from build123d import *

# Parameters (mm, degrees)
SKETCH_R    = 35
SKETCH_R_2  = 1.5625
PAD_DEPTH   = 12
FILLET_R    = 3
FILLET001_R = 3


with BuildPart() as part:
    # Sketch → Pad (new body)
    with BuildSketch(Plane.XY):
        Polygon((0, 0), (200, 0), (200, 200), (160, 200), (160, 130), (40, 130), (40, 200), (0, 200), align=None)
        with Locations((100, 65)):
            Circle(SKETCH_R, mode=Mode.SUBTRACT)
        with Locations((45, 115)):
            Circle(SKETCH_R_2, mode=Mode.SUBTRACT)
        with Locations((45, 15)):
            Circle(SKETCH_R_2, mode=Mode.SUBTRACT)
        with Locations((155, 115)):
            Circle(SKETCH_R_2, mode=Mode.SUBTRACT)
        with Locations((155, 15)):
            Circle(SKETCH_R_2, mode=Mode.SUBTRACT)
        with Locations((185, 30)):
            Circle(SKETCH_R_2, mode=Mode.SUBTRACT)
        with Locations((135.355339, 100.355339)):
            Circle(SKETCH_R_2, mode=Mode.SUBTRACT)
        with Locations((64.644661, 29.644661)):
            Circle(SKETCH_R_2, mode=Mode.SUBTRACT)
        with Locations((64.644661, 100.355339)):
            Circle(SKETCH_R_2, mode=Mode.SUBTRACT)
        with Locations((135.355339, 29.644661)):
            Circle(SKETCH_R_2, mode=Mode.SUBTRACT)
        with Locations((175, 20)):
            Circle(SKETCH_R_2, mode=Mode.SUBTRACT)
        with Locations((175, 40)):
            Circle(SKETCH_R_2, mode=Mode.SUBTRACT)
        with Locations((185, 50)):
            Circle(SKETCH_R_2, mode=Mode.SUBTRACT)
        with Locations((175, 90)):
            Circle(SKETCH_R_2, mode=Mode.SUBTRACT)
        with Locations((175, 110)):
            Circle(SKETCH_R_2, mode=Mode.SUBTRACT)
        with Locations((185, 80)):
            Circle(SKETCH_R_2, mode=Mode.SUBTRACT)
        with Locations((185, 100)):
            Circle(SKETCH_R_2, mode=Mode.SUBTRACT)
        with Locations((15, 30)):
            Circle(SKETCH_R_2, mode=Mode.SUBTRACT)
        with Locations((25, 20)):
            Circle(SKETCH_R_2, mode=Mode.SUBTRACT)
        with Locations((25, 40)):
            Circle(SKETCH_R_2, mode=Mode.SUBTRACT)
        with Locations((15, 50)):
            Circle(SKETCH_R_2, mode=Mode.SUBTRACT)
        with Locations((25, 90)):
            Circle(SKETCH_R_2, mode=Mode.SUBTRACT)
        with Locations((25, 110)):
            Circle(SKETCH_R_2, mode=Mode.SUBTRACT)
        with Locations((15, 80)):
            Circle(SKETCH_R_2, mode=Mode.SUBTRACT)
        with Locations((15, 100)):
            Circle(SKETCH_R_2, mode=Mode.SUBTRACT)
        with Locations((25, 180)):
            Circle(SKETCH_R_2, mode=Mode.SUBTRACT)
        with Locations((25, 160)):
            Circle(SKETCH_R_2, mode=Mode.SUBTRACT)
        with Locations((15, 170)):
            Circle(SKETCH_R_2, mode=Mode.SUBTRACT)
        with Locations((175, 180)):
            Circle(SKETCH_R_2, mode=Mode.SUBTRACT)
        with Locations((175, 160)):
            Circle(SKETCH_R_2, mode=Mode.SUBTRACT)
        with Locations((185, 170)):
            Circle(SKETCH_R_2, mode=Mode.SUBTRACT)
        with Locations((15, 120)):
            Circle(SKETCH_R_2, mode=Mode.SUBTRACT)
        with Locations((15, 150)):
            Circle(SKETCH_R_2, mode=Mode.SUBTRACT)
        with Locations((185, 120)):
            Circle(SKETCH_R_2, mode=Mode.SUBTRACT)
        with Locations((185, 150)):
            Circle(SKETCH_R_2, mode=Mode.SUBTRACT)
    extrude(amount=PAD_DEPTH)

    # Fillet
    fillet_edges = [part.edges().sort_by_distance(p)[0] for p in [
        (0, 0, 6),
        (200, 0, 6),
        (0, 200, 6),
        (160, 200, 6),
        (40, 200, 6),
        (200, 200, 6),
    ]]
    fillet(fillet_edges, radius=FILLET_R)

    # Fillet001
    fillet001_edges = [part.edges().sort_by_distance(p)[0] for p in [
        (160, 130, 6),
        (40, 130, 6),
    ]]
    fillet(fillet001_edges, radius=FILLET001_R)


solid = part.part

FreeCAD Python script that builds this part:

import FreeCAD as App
import Part
import Sketcher
from FreeCAD import Vector


def edges_at(feature, points):
    """Names of the edges that pass closest to the given points."""
    edges = feature.Shape.Edges
    near = lambda p: min(range(len(edges)), key=lambda i: edges[i].distToShape(Part.Vertex(*p))[0])
    return sorted({f"Edge{near(p) + 1}" for p in points})

doc = App.newDocument("Part")
params = doc.addObject("Spreadsheet::Sheet", "Params")
for row, (alias, value) in enumerate([
    ("sketch1_diameter", "70 mm"),
    ("sketch1_width", "200 mm"),
    ("sketch1_width2", "40 mm"),
    ("sketch1_height", "70 mm"),
    ("pad1_length", "12 mm"),
    ("fillet_radius", "3 mm"),
    ("fillet2_radius", "3 mm"),
], start=1):
    params.set(f"A{row}", alias)
    params.set(f"B{row}", "=" + value)
    params.setAlias(f"B{row}", alias)

body = doc.addObject("PartDesign::Body", "Body")

sketch1 = body.newObject("Sketcher::SketchObject", "Sketch")
sketch1.AttachmentSupport = (doc.getObject("XY_Plane"), [""])
sketch1.MapMode = "FlatFace"
sketch1.addGeometry([
    Part.LineSegment(Vector(0, 0, 0), Vector(200, 0, 0)),
    Part.LineSegment(Vector(200, 0, 0), Vector(200, 200, 0)),
    Part.LineSegment(Vector(200, 200, 0), Vector(160, 200, 0)),
    Part.LineSegment(Vector(160, 200, 0), Vector(160, 130, 0)),
    Part.LineSegment(Vector(160, 130, 0), Vector(40, 130, 0)),
    Part.LineSegment(Vector(40, 130, 0), Vector(40, 200, 0)),
    Part.LineSegment(Vector(40, 200, 0), Vector(0, 200, 0)),
    Part.LineSegment(Vector(0, 200, 0), Vector(0, 0, 0)),
    Part.Circle(Vector(25, 20, 0), Vector(0, 0, 1), 1.6),
    Part.Circle(Vector(15, 30, 0), Vector(0, 0, 1), 1.6),
    Part.Circle(Vector(45, 15, 0), Vector(0, 0, 1), 1.6),
    Part.Circle(Vector(25, 40, 0), Vector(0, 0, 1), 1.6),
    Part.Circle(Vector(15, 50, 0), Vector(0, 0, 1), 1.6),
    Part.Circle(Vector(64.6, 29.6, 0), Vector(0, 0, 1), 1.6),
    Part.Circle(Vector(15, 80, 0), Vector(0, 0, 1), 1.6),
    Part.Circle(Vector(25, 90, 0), Vector(0, 0, 1), 1.6),
    Part.Circle(Vector(135.4, 29.6, 0), Vector(0, 0, 1), 1.6),
    Part.Circle(Vector(155, 15, 0), Vector(0, 0, 1), 1.6),
    Part.Circle(Vector(175, 20, 0), Vector(0, 0, 1), 1.6),
    Part.Circle(Vector(185, 30, 0), Vector(0, 0, 1), 1.6),
    Part.Circle(Vector(175, 40, 0), Vector(0, 0, 1), 1.6),
    Part.Circle(Vector(185, 50, 0), Vector(0, 0, 1), 1.6),
    Part.Circle(Vector(100, 65, 0), Vector(0, 0, 1), 35),
    Part.Circle(Vector(185, 80, 0), Vector(0, 0, 1), 1.6),
    Part.Circle(Vector(175, 90, 0), Vector(0, 0, 1), 1.6),
    Part.Circle(Vector(15, 100, 0), Vector(0, 0, 1), 1.6),
    Part.Circle(Vector(25, 110, 0), Vector(0, 0, 1), 1.6),
    Part.Circle(Vector(45, 115, 0), Vector(0, 0, 1), 1.6),
    Part.Circle(Vector(15, 120, 0), Vector(0, 0, 1), 1.6),
    Part.Circle(Vector(64.6, 100.4, 0), Vector(0, 0, 1), 1.6),
    Part.Circle(Vector(15, 150, 0), Vector(0, 0, 1), 1.6),
    Part.Circle(Vector(25, 160, 0), Vector(0, 0, 1), 1.6),
    Part.Circle(Vector(15, 170, 0), Vector(0, 0, 1), 1.6),
    Part.Circle(Vector(25, 180, 0), Vector(0, 0, 1), 1.6),
    Part.Circle(Vector(135.4, 100.4, 0), Vector(0, 0, 1), 1.6),
    Part.Circle(Vector(155, 115, 0), Vector(0, 0, 1), 1.6),
    Part.Circle(Vector(185, 100, 0), Vector(0, 0, 1), 1.6),
    Part.Circle(Vector(175, 110, 0), Vector(0, 0, 1), 1.6),
    Part.Circle(Vector(185, 120, 0), Vector(0, 0, 1), 1.6),
    Part.Circle(Vector(185, 150, 0), Vector(0, 0, 1), 1.6),
    Part.Circle(Vector(175, 160, 0), Vector(0, 0, 1), 1.6),
    Part.Circle(Vector(185, 170, 0), Vector(0, 0, 1), 1.6),
    Part.Circle(Vector(175, 180, 0), Vector(0, 0, 1), 1.6),
], False)
sketch1.addConstraint([
    Sketcher.Constraint("Coincident", 0, 2, 1, 1),
    Sketcher.Constraint("Coincident", 1, 2, 2, 1),
    Sketcher.Constraint("Coincident", 2, 2, 3, 1),
    Sketcher.Constraint("Coincident", 3, 2, 4, 1),
    Sketcher.Constraint("Coincident", 4, 2, 5, 1),
    Sketcher.Constraint("Coincident", 5, 2, 6, 1),
    Sketcher.Constraint("Coincident", 6, 2, 7, 1),
    Sketcher.Constraint("Coincident", 7, 2, 0, 1),
    Sketcher.Constraint("Horizontal", 0),
    Sketcher.Constraint("Vertical", 1),
    Sketcher.Constraint("Horizontal", 2),
    Sketcher.Constraint("Vertical", 3),
    Sketcher.Constraint("Horizontal", 4),
    Sketcher.Constraint("Vertical", 5),
    Sketcher.Constraint("Horizontal", 6),
    Sketcher.Constraint("Vertical", 7),
    Sketcher.Constraint("Coincident", 7, 2, -1, 1),
    Sketcher.Constraint("Equal", 8, 9),
    Sketcher.Constraint("Equal", 9, 10),
    Sketcher.Constraint("Equal", 10, 11),
    Sketcher.Constraint("Equal", 11, 12),
    Sketcher.Constraint("Equal", 12, 13),
    Sketcher.Constraint("Equal", 13, 14),
    Sketcher.Constraint("Equal", 14, 15),
    Sketcher.Constraint("Equal", 15, 16),
    Sketcher.Constraint("Equal", 16, 17),
    Sketcher.Constraint("Equal", 17, 18),
    Sketcher.Constraint("Equal", 18, 19),
    Sketcher.Constraint("Equal", 19, 20),
    Sketcher.Constraint("Equal", 20, 21),
    Sketcher.Constraint("Equal", 21, 23),
    Sketcher.Constraint("Equal", 23, 24),
    Sketcher.Constraint("Equal", 24, 25),
    Sketcher.Constraint("Equal", 25, 26),
    Sketcher.Constraint("Equal", 26, 27),
    Sketcher.Constraint("Equal", 27, 28),
    Sketcher.Constraint("Equal", 28, 29),
    Sketcher.Constraint("Equal", 29, 30),
    Sketcher.Constraint("Equal", 30, 31),
    Sketcher.Constraint("Equal", 31, 32),
    Sketcher.Constraint("Equal", 32, 33),
    Sketcher.Constraint("Equal", 33, 34),
    Sketcher.Constraint("Equal", 34, 35),
    Sketcher.Constraint("Equal", 35, 36),
    Sketcher.Constraint("Equal", 36, 37),
    Sketcher.Constraint("Equal", 37, 38),
    Sketcher.Constraint("Equal", 38, 39),
    Sketcher.Constraint("Equal", 39, 40),
    Sketcher.Constraint("Equal", 40, 41),
    Sketcher.Constraint("Equal", 41, 42),
    Sketcher.Constraint("Horizontal", 13, 3, 16, 3),
    Sketcher.Constraint("Horizontal", 10, 3, 17, 3),
    Sketcher.Constraint("Horizontal", 8, 3, 18, 3),
    Sketcher.Constraint("Horizontal", 9, 3, 19, 3),
    Sketcher.Constraint("Horizontal", 11, 3, 20, 3),
    Sketcher.Constraint("Horizontal", 12, 3, 21, 3),
    Sketcher.Constraint("Horizontal", 14, 3, 23, 3),
    Sketcher.Constraint("Horizontal", 15, 3, 24, 3),
    Sketcher.Constraint("Horizontal", 29, 3, 34, 3),
    Sketcher.Constraint("Horizontal", 27, 3, 35, 3),
    Sketcher.Constraint("Horizontal", 25, 3, 36, 3),
    Sketcher.Constraint("Horizontal", 26, 3, 37, 3),
    Sketcher.Constraint("Horizontal", 28, 3, 38, 3),
    Sketcher.Constraint("Horizontal", 30, 3, 39, 3),
    Sketcher.Constraint("Horizontal", 31, 3, 40, 3),
    Sketcher.Constraint("Horizontal", 32, 3, 41, 3),
    Sketcher.Constraint("Horizontal", 33, 3, 42, 3),
    Sketcher.Constraint("Horizontal", 2, 2, 5, 2),
    Sketcher.Constraint("Vertical", 8, 3, 11, 3),
    Sketcher.Constraint("Vertical", 9, 3, 12, 3),
    Sketcher.Constraint("Vertical", 12, 3, 14, 3),
    Sketcher.Constraint("Vertical", 11, 3, 15, 3),
    Sketcher.Constraint("Vertical", 18, 3, 20, 3),
    Sketcher.Constraint("Vertical", 19, 3, 21, 3),
    Sketcher.Constraint("Vertical", 21, 3, 23, 3),
    Sketcher.Constraint("Vertical", 20, 3, 24, 3),
    Sketcher.Constraint("Vertical", 14, 3, 25, 3),
    Sketcher.Constraint("Vertical", 15, 3, 26, 3),
    Sketcher.Constraint("Vertical", 10, 3, 27, 3),
    Sketcher.Constraint("Vertical", 25, 3, 28, 3),
    Sketcher.Constraint("Vertical", 13, 3, 29, 3),
    Sketcher.Constraint("Vertical", 28, 3, 30, 3),
    Sketcher.Constraint("Vertical", 26, 3, 31, 3),
    Sketcher.Constraint("Vertical", 30, 3, 32, 3),
    Sketcher.Constraint("Vertical", 31, 3, 33, 3),
    Sketcher.Constraint("Vertical", 16, 3, 34, 3),
    Sketcher.Constraint("Vertical", 17, 3, 35, 3),
    Sketcher.Constraint("Vertical", 23, 3, 36, 3),
    Sketcher.Constraint("Vertical", 24, 3, 37, 3),
    Sketcher.Constraint("Vertical", 36, 3, 38, 3),
    Sketcher.Constraint("Vertical", 38, 3, 39, 3),
    Sketcher.Constraint("Vertical", 37, 3, 40, 3),
    Sketcher.Constraint("Vertical", 39, 3, 41, 3),
    Sketcher.Constraint("Vertical", 40, 3, 42, 3),
    Sketcher.Constraint("Equal", 2, 6),
    Sketcher.Constraint("Equal", 0, 1),
    Sketcher.Constraint("Diameter", 22, 70.0),
    Sketcher.Constraint("DistanceX", 0, 1, 0, 2, 200.0),
    Sketcher.Constraint("DistanceX", 2, 2, 2, 1, 40.0),
    Sketcher.Constraint("DistanceY", 3, 2, 3, 1, 70.0),
    Sketcher.Constraint("Diameter", 8, 3.125),
    Sketcher.Constraint("DistanceX", -1, 1, 8, 3, 25.0),
    Sketcher.Constraint("DistanceY", -1, 1, 8, 3, 20.0),
    Sketcher.Constraint("DistanceX", -1, 1, 9, 3, 15.0),
    Sketcher.Constraint("DistanceY", -1, 1, 9, 3, 30.0),
    Sketcher.Constraint("DistanceX", -1, 1, 10, 3, 45.0),
    Sketcher.Constraint("DistanceY", -1, 1, 10, 3, 15.0),
    Sketcher.Constraint("DistanceY", -1, 1, 11, 3, 40.0),
    Sketcher.Constraint("DistanceY", -1, 1, 12, 3, 50.0),
    Sketcher.Constraint("DistanceY", -1, 1, 14, 3, 80.0),
    Sketcher.Constraint("DistanceY", -1, 1, 15, 3, 90.0),
    Sketcher.Constraint("DistanceX", -1, 1, 17, 3, 155.0),
    Sketcher.Constraint("DistanceX", -1, 1, 18, 3, 175.0),
    Sketcher.Constraint("DistanceX", -1, 1, 19, 3, 185.0),
    Sketcher.Constraint("DistanceX", -1, 1, 22, 3, 100.0),
    Sketcher.Constraint("DistanceY", -1, 1, 22, 3, 65.0),
    Sketcher.Constraint("DistanceY", -1, 1, 25, 3, 100.0),
    Sketcher.Constraint("DistanceY", -1, 1, 26, 3, 110.0),
    Sketcher.Constraint("DistanceY", -1, 1, 27, 3, 115.0),
    Sketcher.Constraint("DistanceY", -1, 1, 28, 3, 120.0),
    Sketcher.Constraint("DistanceY", -1, 1, 30, 3, 150.0),
    Sketcher.Constraint("DistanceY", -1, 1, 31, 3, 160.0),
    Sketcher.Constraint("DistanceY", -1, 1, 32, 3, 170.0),
    Sketcher.Constraint("DistanceY", -1, 1, 33, 3, 180.0),
    Sketcher.Constraint("DistanceX", -1, 1, 13, 3, 64.644661),
    Sketcher.Constraint("DistanceY", -1, 1, 13, 3, 29.644661),
    Sketcher.Constraint("DistanceX", -1, 1, 16, 3, 135.355339),
    Sketcher.Constraint("DistanceY", -1, 1, 29, 3, 100.355339),
])
sketch1.setExpression("Constraints[96]", "Params.sketch1_diameter")
sketch1.setExpression("Constraints[97]", "Params.sketch1_width")
sketch1.setExpression("Constraints[98]", "Params.sketch1_width2")
sketch1.setExpression("Constraints[99]", "Params.sketch1_height")
pad1 = body.newObject("PartDesign::Pad", "Pad")
pad1.Profile = sketch1
pad1.setExpression("Length", "Params.pad1_length")
doc.recompute()

fillet = body.newObject("PartDesign::Fillet", "Fillet")
fillet.Base = (pad1, edges_at(pad1, [
    (0, 0, 6),
    (200, 0, 6),
    (0, 200, 6),
    (160, 200, 6),
    (40, 200, 6),
    (200, 200, 6),
]))
fillet.setExpression("Radius", "Params.fillet_radius")
doc.recompute()

fillet2 = body.newObject("PartDesign::Fillet", "Fillet001")
fillet2.Base = (fillet, edges_at(fillet, [(160, 130, 6), (40, 130, 6)]))
fillet2.setExpression("Radius", "Params.fillet2_radius")

doc.recompute()
